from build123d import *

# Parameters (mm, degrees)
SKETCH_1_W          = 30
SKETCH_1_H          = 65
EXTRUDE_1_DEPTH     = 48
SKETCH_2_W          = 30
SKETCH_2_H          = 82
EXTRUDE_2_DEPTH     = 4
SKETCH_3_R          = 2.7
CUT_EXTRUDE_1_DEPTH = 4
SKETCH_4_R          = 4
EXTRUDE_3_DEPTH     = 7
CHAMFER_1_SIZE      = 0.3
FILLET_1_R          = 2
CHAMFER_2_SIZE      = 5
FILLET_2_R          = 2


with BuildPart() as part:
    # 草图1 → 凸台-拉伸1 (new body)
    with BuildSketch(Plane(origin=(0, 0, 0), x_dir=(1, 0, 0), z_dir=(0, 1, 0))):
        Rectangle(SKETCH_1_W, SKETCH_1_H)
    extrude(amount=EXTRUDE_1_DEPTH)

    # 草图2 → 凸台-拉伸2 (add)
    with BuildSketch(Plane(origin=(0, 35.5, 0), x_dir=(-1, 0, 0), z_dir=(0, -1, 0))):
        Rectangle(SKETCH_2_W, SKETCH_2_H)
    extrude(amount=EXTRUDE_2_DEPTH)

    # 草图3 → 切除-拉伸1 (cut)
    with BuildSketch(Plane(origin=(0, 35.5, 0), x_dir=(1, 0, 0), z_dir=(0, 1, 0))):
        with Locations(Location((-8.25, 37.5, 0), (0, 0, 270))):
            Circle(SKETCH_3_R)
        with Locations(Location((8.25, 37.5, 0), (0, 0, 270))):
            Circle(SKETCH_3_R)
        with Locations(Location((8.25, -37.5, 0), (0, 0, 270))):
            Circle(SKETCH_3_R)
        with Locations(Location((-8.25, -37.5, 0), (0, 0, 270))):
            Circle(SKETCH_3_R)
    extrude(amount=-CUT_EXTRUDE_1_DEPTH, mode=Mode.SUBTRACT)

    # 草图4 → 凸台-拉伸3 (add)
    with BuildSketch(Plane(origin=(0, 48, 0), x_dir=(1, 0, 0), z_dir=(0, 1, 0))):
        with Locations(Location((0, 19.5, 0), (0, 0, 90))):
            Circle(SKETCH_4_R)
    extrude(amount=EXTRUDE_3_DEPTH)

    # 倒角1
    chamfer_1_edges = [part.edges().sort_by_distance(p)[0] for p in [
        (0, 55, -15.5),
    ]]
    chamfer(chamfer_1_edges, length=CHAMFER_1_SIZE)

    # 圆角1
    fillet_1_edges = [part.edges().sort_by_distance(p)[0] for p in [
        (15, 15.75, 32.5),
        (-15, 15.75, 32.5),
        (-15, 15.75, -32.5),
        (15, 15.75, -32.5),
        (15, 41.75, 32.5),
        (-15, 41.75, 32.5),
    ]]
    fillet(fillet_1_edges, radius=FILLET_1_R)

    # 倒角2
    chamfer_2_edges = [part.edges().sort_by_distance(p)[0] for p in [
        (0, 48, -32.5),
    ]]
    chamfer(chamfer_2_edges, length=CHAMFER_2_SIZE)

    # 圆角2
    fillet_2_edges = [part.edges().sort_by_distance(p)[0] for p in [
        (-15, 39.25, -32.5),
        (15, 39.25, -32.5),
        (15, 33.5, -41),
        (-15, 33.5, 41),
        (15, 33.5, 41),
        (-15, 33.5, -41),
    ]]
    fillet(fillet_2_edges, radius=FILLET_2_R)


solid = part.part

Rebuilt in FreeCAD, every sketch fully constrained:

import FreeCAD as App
import Part
import Sketcher
from FreeCAD import Vector


def edges_at(feature, points):
    """Names of the edges that pass closest to the given points."""
    edges = feature.Shape.Edges
    near = lambda p: min(range(len(edges)), key=lambda i: edges[i].distToShape(Part.Vertex(*p))[0])
    return sorted({f"Edge{near(p) + 1}" for p in points})

doc = App.newDocument("Part")
params = doc.addObject("Spreadsheet::Sheet", "Params")
for row, (alias, value) in enumerate([
    ("sketch1_width", "30 mm"),
    ("sketch1_height", "65 mm"),
    ("pad1_length", "48 mm"),
    ("sketch2_width", "30 mm"),
    ("sketch2_height", "82 mm"),
    ("pad2_length", "4 mm"),
    ("sketch3_diameter", "5.4 mm"),
    ("pocket1_length", "4 mm"),
    ("sketch4_diameter", "8 mm"),
    ("pad3_length", "7 mm"),
    ("chamfer_size", "0.3 mm"),
    ("fillet_radius", "2 mm"),
    ("chamfer2_size", "5 mm"),
    ("fillet2_radius", "2 mm"),
], start=1):
    params.set(f"A{row}", alias)
    params.set(f"B{row}", "=" + value)
    params.setAlias(f"B{row}", alias)

body = doc.addObject("PartDesign::Body", "Body")

# Sketch on XZ plane
sketch1 = body.newObject("Sketcher::SketchObject", "Sketch")
sketch1.AttachmentSupport = (doc.getObject("XZ_Plane"), [""])
sketch1.MapMode = "FlatFace"
sketch1.addGeometry([
    Part.LineSegment(Vector(-15, -32, 0), Vector(-15, 32, 0)),
    Part.LineSegment(Vector(-15, 32, 0), Vector(15, 32, 0)),
    Part.LineSegment(Vector(15, 32, 0), Vector(15, -32, 0)),
    Part.LineSegment(Vector(15, -32, 0), Vector(-15, -32, 0)),
], False)
sketch1.addConstraint([
    Sketcher.Constraint("Coincident", 0, 2, 1, 1),
    Sketcher.Constraint("Coincident", 1, 2, 2, 1),
    Sketcher.Constraint("Coincident", 2, 2, 3, 1),
    Sketcher.Constraint("Coincident", 3, 2, 0, 1),
    Sketcher.Constraint("Vertical", 0),
    Sketcher.Constraint("Horizontal", 1),
    Sketcher.Constraint("Vertical", 2),
    Sketcher.Constraint("Horizontal", 3),
    Sketcher.Constraint("Symmetric", 0, 2, 2, 2, -1, 1),
    Sketcher.Constraint("DistanceX", 1, 1, 1, 2, 30.0),
    Sketcher.Constraint("DistanceY", 0, 1, 0, 2, 65.0),
])
sketch1.setExpression("Constraints[9]", "Params.sketch1_width")
sketch1.setExpression("Constraints[10]", "Params.sketch1_height")
pad1 = body.newObject("PartDesign::Pad", "Pad")
pad1.Profile = sketch1
pad1.setExpression("Length", "Params.pad1_length")
pad1.Reversed = True

# Sketch on XZ plane
sketch2 = body.newObject("Sketcher::SketchObject", "Sketch001")
sketch2.AttachmentSupport = (doc.getObject("XZ_Plane"), [""])
sketch2.MapMode = "FlatFace"
sketch2.AttachmentOffset = App.Placement(Vector(0, 0, -35.5), App.Rotation())
sketch2.addGeometry([
    Part.LineSegment(Vector(15, -41, 0), Vector(15, 41, 0)),
    Part.LineSegment(Vector(15, 41, 0), Vector(-15, 41, 0)),
    Part.LineSegment(Vector(-15, 41, 0), Vector(-15, -41, 0)),
    Part.LineSegment(Vector(-15, -41, 0), Vector(15, -41, 0)),
], False)
sketch2.addConstraint([
    Sketcher.Constraint("Coincident", 0, 2, 1, 1),
    Sketcher.Constraint("Coincident", 1, 2, 2, 1),
    Sketcher.Constraint("Coincident", 2, 2, 3, 1),
    Sketcher.Constraint("Coincident", 3, 2, 0, 1),
    Sketcher.Constraint("Vertical", 0),
    Sketcher.Constraint("Horizontal", 1),
    Sketcher.Constraint("Vertical", 2),
    Sketcher.Constraint("Horizontal", 3),
    Sketcher.Constraint("Symmetric", 0, 2, 2, 2, -1, 1),
    Sketcher.Constraint("DistanceX", 1, 2, 1, 1, 30.0),
    Sketcher.Constraint("DistanceY", 0, 1, 0, 2, 82.0),
])
sketch2.setExpression("Constraints[9]", "Params.sketch2_width")
sketch2.setExpression("Constraints[10]", "Params.sketch2_height")
pad2 = body.newObject("PartDesign::Pad", "Pad001")
pad2.Profile = sketch2
pad2.setExpression("Length", "Params.pad2_length")

# Sketch on XZ plane
sketch3 = body.newObject("Sketcher::SketchObject", "Sketch002")
sketch3.AttachmentSupport = (doc.getObject("XZ_Plane"), [""])
sketch3.MapMode = "FlatFace"
sketch3.AttachmentOffset = App.Placement(Vector(0, 0, -35.5), App.Rotation())
sketch3.addGeometry([
    Part.Circle(Vector(-8.2, -37.5, 0), Vector(0, 0, 1), 2.7),
    Part.Circle(Vector(8.2, -37.5, 0), Vector(0, 0, 1), 2.7),
    Part.Circle(Vector(8.2, 37.5, 0), Vector(0, 0, 1), 2.7),
    Part.Circle(Vector(-8.2, 37.5, 0), Vector(0, 0, 1), 2.7),
], False)
sketch3.addConstraint([
    Sketcher.Constraint("Equal", 0, 1),
    Sketcher.Constraint("Equal", 1, 2),
    Sketcher.Constraint("Equal", 2, 3),
    Sketcher.Constraint("Symmetric", 0, 3, 2, 3, -1, 1),
    Sketcher.Constraint("Symmetric", 1, 3, 3, 3, -1, 1),
    Sketcher.Constraint("Symmetric", 0, 3, 1, 3, -2),
    Sketcher.Constraint("Diameter", 0, 5.4),
    Sketcher.Constraint("DistanceY", 1, 3, 2, 3, 75.0),
    Sketcher.Constraint("DistanceX", 0, 3, 1, 3, 16.5),
])
sketch3.setExpression("Constraints[6]", "Params.sketch3_diameter")
pocket1 = body.newObject("PartDesign::Pocket", "Pocket")
pocket1.Profile = sketch3
pocket1.setExpression("Length", "Params.pocket1_length")
pocket1.Reversed = True

# Sketch on XZ plane
sketch4 = body.newObject("Sketcher::SketchObject", "Sketch003")
sketch4.AttachmentSupport = (doc.getObject("XZ_Plane"), [""])
sketch4.MapMode = "FlatFace"
sketch4.AttachmentOffset = App.Placement(Vector(0, 0, -48), App.Rotation())
sketch4.addGeometry(Part.Circle(Vector(0, -19.5, 0), Vector(0, 0, 1), 4), False)
sketch4.addConstraint([
    Sketcher.Constraint("PointOnObject", 0, 3, -2),
    Sketcher.Constraint("Diameter", 0, 8.0),
    Sketcher.Constraint("DistanceY", 0, 3, -1, 1, 19.5),
])
sketch4.setExpression("Constraints[1]", "Params.sketch4_diameter")
pad3 = body.newObject("PartDesign::Pad", "Pad002")
pad3.Profile = sketch4
pad3.setExpression("Length", "Params.pad3_length")
pad3.Reversed = True
doc.recompute()

chamfer = body.newObject("PartDesign::Chamfer", "Chamfer")
chamfer.Base = (pad3, edges_at(pad3, [(0, 55, -15.5)]))
chamfer.setExpression("Size", "Params.chamfer_size")
doc.recompute()

fillet = body.newObject("PartDesign::Fillet", "Fillet")
fillet.Base = (chamfer, edges_at(chamfer, [
    (15, 15.75, 32.5),
    (-15, 15.75, 32.5),
    (-15, 15.75, -32.5),
    (15, 15.75, -32.5),
    (15, 41.75, 32.5),
    (-15, 41.75, 32.5),
]))
fillet.setExpression("Radius", "Params.fillet_radius")
doc.recompute()

chamfer2 = body.newObject("PartDesign::Chamfer", "Chamfer001")
chamfer2.Base = (fillet, edges_at(fillet, [(0, 48, -32.5)]))
chamfer2.setExpression("Size", "Params.chamfer2_size")
doc.recompute()

fillet2 = body.newObject("PartDesign::Fillet", "Fillet001")
fillet2.Base = (chamfer2, edges_at(chamfer2, [
    (-15, 39.25, -32.5),
    (15, 39.25, -32.5),
    (15, 33.5, -41),
    (-15, 33.5, 41),
    (15, 33.5, 41),
    (-15, 33.5, -41),
]))
fillet2.setExpression("Radius", "Params.fillet2_radius")

doc.recompute()
